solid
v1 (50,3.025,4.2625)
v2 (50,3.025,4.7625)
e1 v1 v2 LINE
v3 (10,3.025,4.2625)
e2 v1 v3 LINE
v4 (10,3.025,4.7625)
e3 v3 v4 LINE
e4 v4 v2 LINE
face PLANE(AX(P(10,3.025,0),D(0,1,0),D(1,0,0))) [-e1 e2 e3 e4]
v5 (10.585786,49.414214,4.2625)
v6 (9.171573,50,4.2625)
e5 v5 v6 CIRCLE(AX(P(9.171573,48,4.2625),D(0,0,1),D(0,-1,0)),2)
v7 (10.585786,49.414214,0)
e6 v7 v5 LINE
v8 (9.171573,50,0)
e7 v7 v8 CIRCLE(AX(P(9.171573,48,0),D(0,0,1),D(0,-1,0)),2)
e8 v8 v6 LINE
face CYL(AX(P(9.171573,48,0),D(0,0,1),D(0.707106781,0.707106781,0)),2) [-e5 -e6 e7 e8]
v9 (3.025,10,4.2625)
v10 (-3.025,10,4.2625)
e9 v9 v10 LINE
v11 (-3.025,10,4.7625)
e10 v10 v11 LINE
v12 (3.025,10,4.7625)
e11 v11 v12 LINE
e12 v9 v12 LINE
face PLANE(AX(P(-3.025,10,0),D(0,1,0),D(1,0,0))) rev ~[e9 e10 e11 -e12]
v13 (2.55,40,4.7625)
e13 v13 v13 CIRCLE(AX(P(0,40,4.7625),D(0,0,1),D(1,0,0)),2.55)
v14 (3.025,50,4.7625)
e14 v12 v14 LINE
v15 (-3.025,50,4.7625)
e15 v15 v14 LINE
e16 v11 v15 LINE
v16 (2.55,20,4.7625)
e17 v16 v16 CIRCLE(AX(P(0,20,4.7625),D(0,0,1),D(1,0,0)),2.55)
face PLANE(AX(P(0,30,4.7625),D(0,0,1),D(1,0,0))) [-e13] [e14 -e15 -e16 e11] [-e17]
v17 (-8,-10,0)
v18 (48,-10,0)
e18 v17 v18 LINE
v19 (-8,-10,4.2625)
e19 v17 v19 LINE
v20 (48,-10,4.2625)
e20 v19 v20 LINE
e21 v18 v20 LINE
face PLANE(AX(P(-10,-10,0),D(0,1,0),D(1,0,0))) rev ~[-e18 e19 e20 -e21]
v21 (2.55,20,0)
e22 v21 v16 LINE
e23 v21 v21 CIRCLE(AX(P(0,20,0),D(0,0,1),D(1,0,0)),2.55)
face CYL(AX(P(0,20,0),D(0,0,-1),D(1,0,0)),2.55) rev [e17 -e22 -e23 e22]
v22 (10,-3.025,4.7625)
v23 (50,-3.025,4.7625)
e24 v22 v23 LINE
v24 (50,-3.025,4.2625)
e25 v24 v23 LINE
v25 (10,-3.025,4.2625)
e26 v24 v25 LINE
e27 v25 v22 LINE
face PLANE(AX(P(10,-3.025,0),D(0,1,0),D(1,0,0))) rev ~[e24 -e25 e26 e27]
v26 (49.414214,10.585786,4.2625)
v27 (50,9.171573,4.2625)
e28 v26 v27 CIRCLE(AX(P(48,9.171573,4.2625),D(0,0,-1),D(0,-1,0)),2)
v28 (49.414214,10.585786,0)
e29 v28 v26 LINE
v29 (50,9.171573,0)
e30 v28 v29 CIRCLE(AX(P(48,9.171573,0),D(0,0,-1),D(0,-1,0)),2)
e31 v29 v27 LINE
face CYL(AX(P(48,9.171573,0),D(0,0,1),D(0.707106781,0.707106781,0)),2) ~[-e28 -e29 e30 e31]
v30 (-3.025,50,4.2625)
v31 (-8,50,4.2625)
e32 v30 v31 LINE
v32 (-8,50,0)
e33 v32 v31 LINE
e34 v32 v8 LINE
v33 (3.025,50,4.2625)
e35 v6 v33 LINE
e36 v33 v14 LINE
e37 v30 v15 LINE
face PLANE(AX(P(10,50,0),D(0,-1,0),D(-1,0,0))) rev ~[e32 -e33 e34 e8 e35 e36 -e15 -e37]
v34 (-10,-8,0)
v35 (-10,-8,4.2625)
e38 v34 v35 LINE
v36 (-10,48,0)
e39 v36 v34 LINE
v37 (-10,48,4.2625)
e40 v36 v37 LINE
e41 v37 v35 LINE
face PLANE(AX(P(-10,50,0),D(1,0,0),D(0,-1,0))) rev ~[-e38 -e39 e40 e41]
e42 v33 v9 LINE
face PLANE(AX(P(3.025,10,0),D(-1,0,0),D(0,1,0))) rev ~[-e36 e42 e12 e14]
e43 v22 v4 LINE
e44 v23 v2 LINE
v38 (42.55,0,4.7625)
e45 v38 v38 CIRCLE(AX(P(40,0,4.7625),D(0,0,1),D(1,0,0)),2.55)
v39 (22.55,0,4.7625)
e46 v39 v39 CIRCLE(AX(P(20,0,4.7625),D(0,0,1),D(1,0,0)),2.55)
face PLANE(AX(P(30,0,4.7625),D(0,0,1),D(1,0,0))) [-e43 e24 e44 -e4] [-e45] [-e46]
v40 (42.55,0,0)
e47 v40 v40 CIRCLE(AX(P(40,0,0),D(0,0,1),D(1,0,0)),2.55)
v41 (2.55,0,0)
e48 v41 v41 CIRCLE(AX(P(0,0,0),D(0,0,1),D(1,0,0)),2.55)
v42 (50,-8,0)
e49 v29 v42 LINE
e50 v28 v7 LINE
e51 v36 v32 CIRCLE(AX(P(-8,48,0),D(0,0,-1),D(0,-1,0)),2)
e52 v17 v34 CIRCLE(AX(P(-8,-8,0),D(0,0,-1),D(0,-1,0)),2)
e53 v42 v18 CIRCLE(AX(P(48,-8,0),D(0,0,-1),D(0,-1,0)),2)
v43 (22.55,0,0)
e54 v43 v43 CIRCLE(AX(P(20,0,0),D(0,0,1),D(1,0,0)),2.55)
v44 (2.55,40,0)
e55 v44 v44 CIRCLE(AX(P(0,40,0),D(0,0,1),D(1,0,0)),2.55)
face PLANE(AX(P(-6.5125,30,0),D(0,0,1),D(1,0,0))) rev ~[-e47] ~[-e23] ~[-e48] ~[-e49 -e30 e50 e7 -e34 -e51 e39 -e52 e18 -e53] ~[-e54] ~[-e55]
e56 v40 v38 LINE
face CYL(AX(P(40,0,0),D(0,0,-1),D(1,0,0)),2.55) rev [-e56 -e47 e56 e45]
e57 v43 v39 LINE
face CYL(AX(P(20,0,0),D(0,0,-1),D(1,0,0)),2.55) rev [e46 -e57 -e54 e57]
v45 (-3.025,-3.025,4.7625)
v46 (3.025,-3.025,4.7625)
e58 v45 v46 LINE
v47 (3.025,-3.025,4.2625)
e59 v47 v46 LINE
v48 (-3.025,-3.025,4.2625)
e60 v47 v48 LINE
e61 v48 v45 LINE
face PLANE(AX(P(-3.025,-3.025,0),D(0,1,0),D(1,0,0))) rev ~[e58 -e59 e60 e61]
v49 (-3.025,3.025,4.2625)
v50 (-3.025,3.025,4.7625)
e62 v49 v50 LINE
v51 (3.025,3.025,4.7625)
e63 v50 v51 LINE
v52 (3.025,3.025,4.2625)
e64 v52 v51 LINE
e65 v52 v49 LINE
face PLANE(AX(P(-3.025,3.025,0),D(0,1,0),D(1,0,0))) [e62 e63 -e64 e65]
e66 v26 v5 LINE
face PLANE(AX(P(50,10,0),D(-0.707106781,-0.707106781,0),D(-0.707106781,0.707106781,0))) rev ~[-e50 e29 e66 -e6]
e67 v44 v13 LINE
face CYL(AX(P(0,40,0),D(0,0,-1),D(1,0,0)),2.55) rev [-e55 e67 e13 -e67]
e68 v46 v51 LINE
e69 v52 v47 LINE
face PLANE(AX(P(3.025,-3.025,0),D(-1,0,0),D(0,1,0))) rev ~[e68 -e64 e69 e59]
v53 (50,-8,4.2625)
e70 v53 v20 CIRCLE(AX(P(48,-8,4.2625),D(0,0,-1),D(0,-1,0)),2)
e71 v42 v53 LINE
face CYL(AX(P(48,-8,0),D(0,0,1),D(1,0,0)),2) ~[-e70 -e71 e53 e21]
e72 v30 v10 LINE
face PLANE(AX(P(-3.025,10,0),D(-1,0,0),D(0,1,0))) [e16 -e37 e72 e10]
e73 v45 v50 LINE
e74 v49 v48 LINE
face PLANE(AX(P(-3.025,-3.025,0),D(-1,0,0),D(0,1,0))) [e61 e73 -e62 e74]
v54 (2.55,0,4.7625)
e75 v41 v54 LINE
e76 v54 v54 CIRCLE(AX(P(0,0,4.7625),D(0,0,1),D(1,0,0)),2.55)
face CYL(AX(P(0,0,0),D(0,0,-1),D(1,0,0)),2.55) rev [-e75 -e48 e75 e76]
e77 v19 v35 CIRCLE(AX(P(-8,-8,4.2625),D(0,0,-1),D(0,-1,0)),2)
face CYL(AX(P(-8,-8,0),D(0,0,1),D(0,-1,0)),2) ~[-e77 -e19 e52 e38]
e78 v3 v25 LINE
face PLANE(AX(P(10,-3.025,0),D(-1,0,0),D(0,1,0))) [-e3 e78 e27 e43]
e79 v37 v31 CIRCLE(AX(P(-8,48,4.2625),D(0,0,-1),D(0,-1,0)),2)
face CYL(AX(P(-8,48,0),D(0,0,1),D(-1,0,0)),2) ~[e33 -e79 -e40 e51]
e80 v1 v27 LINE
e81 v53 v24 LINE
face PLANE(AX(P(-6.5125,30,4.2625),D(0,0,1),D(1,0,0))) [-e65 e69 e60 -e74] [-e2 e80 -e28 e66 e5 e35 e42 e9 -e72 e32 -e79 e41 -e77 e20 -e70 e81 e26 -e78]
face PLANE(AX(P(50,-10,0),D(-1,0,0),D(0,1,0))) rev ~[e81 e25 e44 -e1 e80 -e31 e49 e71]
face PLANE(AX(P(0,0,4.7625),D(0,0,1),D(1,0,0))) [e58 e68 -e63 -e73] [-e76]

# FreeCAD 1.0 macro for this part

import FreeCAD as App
import Part
import Sketcher
from FreeCAD import Vector
Q = App.Units.Quantity


def edges_at(feature, points):
    """Names of the edges that pass closest to the given points."""
    edges = feature.Shape.Edges
    near = lambda p: min(range(len(edges)), key=lambda i: edges[i].distToShape(Part.Vertex(*p))[0])
    return sorted({f"Edge{near(p) + 1}" for p in points})

doc = App.newDocument("Part")
body = doc.addObject("PartDesign::Body", "Body")

# Sketch on XY plane
sketch1 = body.newObject("Sketcher::SketchObject", "Sketch")
sketch1.AttachmentSupport = (doc.getObject("XY_Plane"), [""])
sketch1.MapMode = "FlatFace"
sketch1.addGeometry(Part.LineSegment(Vector(-10, 50, 0), Vector(-10, -10, 0)), False)
sketch1.addGeometry(Part.LineSegment(Vector(-10, -10, 0), Vector(50, -10, 0)), False)
sketch1.addGeometry(Part.LineSegment(Vector(50, -10, 0), Vector(50, 10, 0)), False)
sketch1.addGeometry(Part.LineSegment(Vector(50, 10, 0), Vector(10, 50, 0)), False)
sketch1.addGeometry(Part.LineSegment(Vector(10, 50, 0), Vector(-10, 50, 0)), False)
sketch1.addGeometry(Part.Circle(Vector(0, 0, 0), Vector(0, 0, 1), 2.55), False)
sketch1.addGeometry(Part.Circle(Vector(20, 0, 0), Vector(0, 0, 1), 2.55), False)
sketch1.addGeometry(Part.Circle(Vector(40, 0, 0), Vector(0, 0, 1), 2.55), False)
sketch1.addGeometry(Part.Circle(Vector(0, 20, 0), Vector(0, 0, 1), 2.55), False)
sketch1.addGeometry(Part.Circle(Vector(0, 40, 0), Vector(0, 0, 1), 2.55), False)
sketch1.addConstraint(Sketcher.Constraint("Coincident", 0, 2, 1, 1))
sketch1.addConstraint(Sketcher.Constraint("Coincident", 1, 2, 2, 1))
sketch1.addConstraint(Sketcher.Constraint("Coincident", 2, 2, 3, 1))
sketch1.addConstraint(Sketcher.Constraint("Coincident", 3, 2, 4, 1))
sketch1.addConstraint(Sketcher.Constraint("Coincident", 4, 2, 0, 1))
sketch1.addConstraint(Sketcher.Constraint("Vertical", 0))
sketch1.addConstraint(Sketcher.Constraint("Horizontal", 1))
sketch1.addConstraint(Sketcher.Constraint("Vertical", 2))
sketch1.addConstraint(Sketcher.Constraint("Horizontal", 4))
sketch1.addConstraint(Sketcher.Constraint("Coincident", 5, 3, -1, 1))
sketch1.addConstraint(Sketcher.Constraint("Equal", 5, 6))
sketch1.addConstraint(Sketcher.Constraint("Equal", 6, 7))
sketch1.addConstraint(Sketcher.Constraint("Equal", 7, 8))
sketch1.addConstraint(Sketcher.Constraint("Equal", 8, 9))
sketch1.addConstraint(Sketcher.Constraint("PointOnObject", 6, 3, -1))
sketch1.addConstraint(Sketcher.Constraint("PointOnObject", 7, 3, -1))
sketch1.addConstraint(Sketcher.Constraint("PointOnObject", 8, 3, -2))
sketch1.addConstraint(Sketcher.Constraint("PointOnObject", 9, 3, -2))
sketch1.addConstraint(Sketcher.Constraint("Equal", 1, 0))
sketch1.addConstraint(Sketcher.Constraint("Equal", 4, 2))
sketch1.addConstraint(Sketcher.Constraint("Diameter", 5, Q("5.1 mm")))
sketch1.addConstraint(Sketcher.Constraint("DistanceX", 1, 1, 1, 2, Q("60 mm")))
sketch1.addConstraint(Sketcher.Constraint("DistanceX", 4, 2, 4, 1, Q("20 mm")))
sketch1.addConstraint(Sketcher.Constraint("DistanceX", -1, 1, 6, 3, Q("20 mm")))
sketch1.addConstraint(Sketcher.Constraint("DistanceX", -1, 1, 7, 3, Q("40 mm")))
sketch1.addConstraint(Sketcher.Constraint("DistanceY", -1, 1, 8, 3, Q("20 mm")))
sketch1.addConstraint(Sketcher.Constraint("DistanceY", -1, 1, 9, 3, Q("40 mm")))
sketch1.addConstraint(Sketcher.Constraint("DistanceX", 0, 2, -1, 1, Q("10 mm")))
sketch1.addConstraint(Sketcher.Constraint("DistanceY", 0, 2, -1, 1, Q("10 mm")))
pad1 = body.newObject("PartDesign::Pad", "Pad")
pad1.Profile = sketch1
pad1.Length = 4.2625

# Sketch on XY plane
sketch2 = body.newObject("Sketcher::SketchObject", "Sketch001")
sketch2.AttachmentSupport = (doc.getObject("XY_Plane"), [""])
sketch2.MapMode = "FlatFace"
sketch2.addGeometry(Part.LineSegment(Vector(-3.025, 3.025, 0), Vector(-3.025, -3.025, 0)), False)
sketch2.addGeometry(Part.LineSegment(Vector(-3.025, -3.025, 0), Vector(3.025, -3.025, 0)), False)
sketch2.addGeometry(Part.LineSegment(Vector(3.025, -3.025, 0), Vector(3.025, 3.025, 0)), False)
sketch2.addGeometry(Part.LineSegment(Vector(3.025, 3.025, 0), Vector(-3.025, 3.025, 0)), False)
sketch2.addGeometry(Part.Circle(Vector(0, 0, 0), Vector(0, 0, 1), 2.55), False)
sketch2.addGeometry(Part.LineSegment(Vector(10, 3.025, 0), Vector(10, -3.025, 0)), False)
sketch2.addGeometry(Part.LineSegment(Vector(10, -3.025, 0), Vector(50, -3.025, 0)), False)
sketch2.addGeometry(Part.LineSegment(Vector(50, -3.025, 0), Vector(50, 3.025, 0)), False)
sketch2.addGeometry(Part.LineSegment(Vector(50, 3.025, 0), Vector(10, 3.025, 0)), False)
sketch2.addGeometry(Part.Circle(Vector(20, 0, 0), Vector(0, 0, 1), 2.55), False)
sketch2.addGeometry(Part.Circle(Vector(40, 0, 0), Vector(0, 0, 1), 2.55), False)
sketch2.addGeometry(Part.LineSegment(Vector(-3.025, 50, 0), Vector(-3.025, 10, 0)), False)
sketch2.addGeometry(Part.LineSegment(Vector(-3.025, 10, 0), Vector(3.025, 10, 0)), False)
sketch2.addGeometry(Part.LineSegment(Vector(3.025, 10, 0), Vector(3.025, 50, 0)), False)
sketch2.addGeometry(Part.LineSegment(Vector(3.025, 50, 0), Vector(-3.025, 50, 0)), False)
sketch2.addGeometry(Part.Circle(Vector(0, 20, 0), Vector(0, 0, 1), 2.55), False)
sketch2.addGeometry(Part.Circle(Vector(0, 40, 0), Vector(0, 0, 1), 2.55), False)
sketch2.addConstraint(Sketcher.Constraint("Coincident", 0, 2, 1, 1))
sketch2.addConstraint(Sketcher.Constraint("Coincident", 1, 2, 2, 1))
sketch2.addConstraint(Sketcher.Constraint("Coincident", 2, 2, 3, 1))
sketch2.addConstraint(Sketcher.Constraint("Coincident", 3, 2, 0, 1))
sketch2.addConstraint(Sketcher.Constraint("Coincident", 5, 2, 6, 1))
sketch2.addConstraint(Sketcher.Constraint("Coincident", 6, 2, 7, 1))
sketch2.addConstraint(Sketcher.Constraint("Coincident", 7, 2, 8, 1))
sketch2.addConstraint(Sketcher.Constraint("Coincident", 8, 2, 5, 1))
sketch2.addConstraint(Sketcher.Constraint("Coincident", 11, 2, 12, 1))
sketch2.addConstraint(Sketcher.Constraint("Coincident", 12, 2, 13, 1))
sketch2.addConstraint(Sketcher.Constraint("Coincident", 13, 2, 14, 1))
sketch2.addConstraint(Sketcher.Constraint("Coincident", 14, 2, 11, 1))
sketch2.addConstraint(Sketcher.Constraint("Vertical", 0))
sketch2.addConstraint(Sketcher.Constraint("Horizontal", 1))
sketch2.addConstraint(Sketcher.Constraint("Vertical", 2))
sketch2.addConstraint(Sketcher.Constraint("Horizontal", 3))
sketch2.addConstraint(Sketcher.Constraint("Vertical", 5))
sketch2.addConstraint(Sketcher.Constraint("Horizontal", 6))
sketch2.addConstraint(Sketcher.Constraint("Vertical", 7))
sketch2.addConstraint(Sketcher.Constraint("Horizontal", 8))
sketch2.addConstraint(Sketcher.Constraint("Vertical", 11))
sketch2.addConstraint(Sketcher.Constraint("Horizontal", 12))
sketch2.addConstraint(Sketcher.Constraint("Vertical", 13))
sketch2.addConstraint(Sketcher.Constraint("Horizontal", 14))
sketch2.addConstraint(Sketcher.Constraint("Coincident", 4, 3, -1, 1))
sketch2.addConstraint(Sketcher.Constraint("Equal", 4, 9))
sketch2.addConstraint(Sketcher.Constraint("Equal", 9, 10))
sketch2.addConstraint(Sketcher.Constraint("Equal", 10, 15))
sketch2.addConstraint(Sketcher.Constraint("Equal", 15, 16))
sketch2.addConstraint(Sketcher.Constraint("Symmetric", 0, 2, 2, 2, -1, 1))
sketch2.addConstraint(Sketcher.Constraint("PointOnObject", 9, 3, -1))
sketch2.addConstraint(Sketcher.Constraint("PointOnObject", 10, 3, -1))
sketch2.addConstraint(Sketcher.Constraint("PointOnObject", 15, 3, -2))
sketch2.addConstraint(Sketcher.Constraint("PointOnObject", 16, 3, -2))
sketch2.addConstraint(Sketcher.Constraint("Horizontal", 1, 2, 5, 2))
sketch2.addConstraint(Sketcher.Constraint("Horizontal", 3, 2, 7, 2))
sketch2.addConstraint(Sketcher.Constraint("Vertical", 3, 2, 11, 2))
sketch2.addConstraint(Sketcher.Constraint("Vertical", 2, 2, 12, 2))
sketch2.addConstraint(Sketcher.Constraint("Equal", 14, 0))
sketch2.addConstraint(Sketcher.Constraint("Equal", 8, 11))
sketch2.addConstraint(Sketcher.Constraint("Diameter", 4, Q("5.1 mm")))
sketch2.addConstraint(Sketcher.Constraint("DistanceX", 6, 1, 6, 2, Q("40 mm")))
sketch2.addConstraint(Sketcher.Constraint("DistanceX", -1, 1, 9, 3, Q("20 mm")))
sketch2.addConstraint(Sketcher.Constraint("DistanceX", -1, 1, 10, 3, Q("40 mm")))
sketch2.addConstraint(Sketcher.Constraint("DistanceY", -1, 1, 15, 3, Q("20 mm")))
sketch2.addConstraint(Sketcher.Constraint("DistanceY", -1, 1, 16, 3, Q("40 mm")))
sketch2.addConstraint(Sketcher.Constraint("DistanceX", -1, 1, 5, 2, Q("10 mm")))
sketch2.addConstraint(Sketcher.Constraint("DistanceY", -1, 1, 11, 2, Q("10 mm")))
sketch2.addConstraint(Sketcher.Constraint("DistanceX", 1, 1, 1, 2, Q("6.05 mm")))
pad2 = body.newObject("PartDesign::Pad", "Pad001")
pad2.Profile = sketch2
pad2.Length = 4.7625
doc.recompute()

fillet = body.newObject("PartDesign::Fillet", "Fillet")
fillet.Base = (pad2, edges_at(pad2, [
    (50, 10, 2.131),
    (50, -10, 2.131),
    (-10, -10, 2.131),
    (-10, 50, 2.131),
    (10, 50, 2.131),
]))
fillet.Radius = 2

doc.recompute()
